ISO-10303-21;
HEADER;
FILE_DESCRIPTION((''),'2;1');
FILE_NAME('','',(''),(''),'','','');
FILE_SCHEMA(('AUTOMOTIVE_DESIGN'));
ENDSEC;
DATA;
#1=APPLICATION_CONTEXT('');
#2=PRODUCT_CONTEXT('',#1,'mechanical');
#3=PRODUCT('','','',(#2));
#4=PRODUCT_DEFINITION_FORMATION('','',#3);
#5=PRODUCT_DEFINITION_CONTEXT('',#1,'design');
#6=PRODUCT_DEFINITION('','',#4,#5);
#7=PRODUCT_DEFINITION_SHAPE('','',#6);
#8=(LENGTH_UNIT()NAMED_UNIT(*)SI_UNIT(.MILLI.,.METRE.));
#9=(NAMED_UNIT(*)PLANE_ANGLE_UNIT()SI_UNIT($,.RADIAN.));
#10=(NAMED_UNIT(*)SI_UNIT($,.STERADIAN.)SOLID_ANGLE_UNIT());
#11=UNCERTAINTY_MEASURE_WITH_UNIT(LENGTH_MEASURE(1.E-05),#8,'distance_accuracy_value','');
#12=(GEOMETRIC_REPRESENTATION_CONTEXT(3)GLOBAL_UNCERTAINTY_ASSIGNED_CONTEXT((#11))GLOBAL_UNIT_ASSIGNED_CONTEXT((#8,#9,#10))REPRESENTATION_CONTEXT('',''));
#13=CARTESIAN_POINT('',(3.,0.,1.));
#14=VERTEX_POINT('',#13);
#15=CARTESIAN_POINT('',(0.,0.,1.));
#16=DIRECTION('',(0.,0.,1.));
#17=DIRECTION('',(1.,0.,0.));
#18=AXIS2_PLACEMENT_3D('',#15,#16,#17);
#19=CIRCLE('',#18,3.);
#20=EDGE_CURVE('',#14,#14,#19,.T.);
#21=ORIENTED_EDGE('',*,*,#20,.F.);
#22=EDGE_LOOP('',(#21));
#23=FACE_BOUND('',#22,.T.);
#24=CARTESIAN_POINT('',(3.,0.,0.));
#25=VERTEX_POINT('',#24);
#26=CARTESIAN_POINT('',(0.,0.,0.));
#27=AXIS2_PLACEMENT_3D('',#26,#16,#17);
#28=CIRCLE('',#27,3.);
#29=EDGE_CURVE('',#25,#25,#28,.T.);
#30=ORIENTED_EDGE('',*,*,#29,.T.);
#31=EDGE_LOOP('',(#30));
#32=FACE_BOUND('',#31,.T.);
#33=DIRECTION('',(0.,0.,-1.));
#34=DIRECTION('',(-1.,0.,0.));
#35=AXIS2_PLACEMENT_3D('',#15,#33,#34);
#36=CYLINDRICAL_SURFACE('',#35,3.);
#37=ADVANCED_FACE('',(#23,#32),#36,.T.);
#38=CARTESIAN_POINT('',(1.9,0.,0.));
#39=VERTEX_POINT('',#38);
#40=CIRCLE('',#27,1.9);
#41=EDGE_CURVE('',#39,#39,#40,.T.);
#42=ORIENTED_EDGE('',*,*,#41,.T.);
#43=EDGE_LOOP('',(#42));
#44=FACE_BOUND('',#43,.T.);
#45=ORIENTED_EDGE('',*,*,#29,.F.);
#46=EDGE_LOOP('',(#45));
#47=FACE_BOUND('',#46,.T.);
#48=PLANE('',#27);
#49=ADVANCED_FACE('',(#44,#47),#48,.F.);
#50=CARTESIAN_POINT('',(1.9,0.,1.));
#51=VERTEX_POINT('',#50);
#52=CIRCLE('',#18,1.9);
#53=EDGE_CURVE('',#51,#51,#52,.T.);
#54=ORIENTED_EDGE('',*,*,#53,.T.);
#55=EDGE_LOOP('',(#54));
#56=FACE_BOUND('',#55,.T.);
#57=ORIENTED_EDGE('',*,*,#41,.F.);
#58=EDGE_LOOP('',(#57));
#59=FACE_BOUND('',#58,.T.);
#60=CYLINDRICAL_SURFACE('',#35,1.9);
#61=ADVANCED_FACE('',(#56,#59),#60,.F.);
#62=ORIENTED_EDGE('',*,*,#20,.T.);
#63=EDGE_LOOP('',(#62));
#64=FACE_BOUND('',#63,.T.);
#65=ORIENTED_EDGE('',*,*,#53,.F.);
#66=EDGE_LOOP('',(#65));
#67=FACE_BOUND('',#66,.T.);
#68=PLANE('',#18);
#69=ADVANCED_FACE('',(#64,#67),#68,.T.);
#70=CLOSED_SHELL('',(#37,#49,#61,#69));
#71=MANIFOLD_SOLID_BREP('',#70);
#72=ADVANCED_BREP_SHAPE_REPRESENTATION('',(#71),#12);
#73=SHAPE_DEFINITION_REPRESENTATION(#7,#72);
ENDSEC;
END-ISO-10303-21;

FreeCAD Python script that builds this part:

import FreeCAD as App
import Part
import Sketcher
from FreeCAD import Vector
Q = App.Units.Quantity

doc = App.newDocument("Part")
body = doc.addObject("PartDesign::Body", "Body")

sketch1 = body.newObject("Sketcher::SketchObject", "Sketch")
sketch1.AttachmentSupport = (doc.getObject("XY_Plane"), [""])
sketch1.MapMode = "FlatFace"
sketch1.addGeometry([
    Part.Circle(Vector(0, 0, 0), Vector(0, 0, 1), 3),
    Part.Circle(Vector(0, 0, 0), Vector(0, 0, 1), 1.9),
], False)
sketch1.addConstraint([
    Sketcher.Constraint("Coincident", 0, 3, -1, 1),
    Sketcher.Constraint("Coincident", 1, 3, -1, 1),
    Sketcher.Constraint("Diameter", 0, Q("6 mm")),
    Sketcher.Constraint("Diameter", 1, Q("3.8 mm")),
])
pad1 = body.newObject("PartDesign::Pad", "Pad")
pad1.Profile = sketch1
pad1.Length = 1

doc.recompute()
